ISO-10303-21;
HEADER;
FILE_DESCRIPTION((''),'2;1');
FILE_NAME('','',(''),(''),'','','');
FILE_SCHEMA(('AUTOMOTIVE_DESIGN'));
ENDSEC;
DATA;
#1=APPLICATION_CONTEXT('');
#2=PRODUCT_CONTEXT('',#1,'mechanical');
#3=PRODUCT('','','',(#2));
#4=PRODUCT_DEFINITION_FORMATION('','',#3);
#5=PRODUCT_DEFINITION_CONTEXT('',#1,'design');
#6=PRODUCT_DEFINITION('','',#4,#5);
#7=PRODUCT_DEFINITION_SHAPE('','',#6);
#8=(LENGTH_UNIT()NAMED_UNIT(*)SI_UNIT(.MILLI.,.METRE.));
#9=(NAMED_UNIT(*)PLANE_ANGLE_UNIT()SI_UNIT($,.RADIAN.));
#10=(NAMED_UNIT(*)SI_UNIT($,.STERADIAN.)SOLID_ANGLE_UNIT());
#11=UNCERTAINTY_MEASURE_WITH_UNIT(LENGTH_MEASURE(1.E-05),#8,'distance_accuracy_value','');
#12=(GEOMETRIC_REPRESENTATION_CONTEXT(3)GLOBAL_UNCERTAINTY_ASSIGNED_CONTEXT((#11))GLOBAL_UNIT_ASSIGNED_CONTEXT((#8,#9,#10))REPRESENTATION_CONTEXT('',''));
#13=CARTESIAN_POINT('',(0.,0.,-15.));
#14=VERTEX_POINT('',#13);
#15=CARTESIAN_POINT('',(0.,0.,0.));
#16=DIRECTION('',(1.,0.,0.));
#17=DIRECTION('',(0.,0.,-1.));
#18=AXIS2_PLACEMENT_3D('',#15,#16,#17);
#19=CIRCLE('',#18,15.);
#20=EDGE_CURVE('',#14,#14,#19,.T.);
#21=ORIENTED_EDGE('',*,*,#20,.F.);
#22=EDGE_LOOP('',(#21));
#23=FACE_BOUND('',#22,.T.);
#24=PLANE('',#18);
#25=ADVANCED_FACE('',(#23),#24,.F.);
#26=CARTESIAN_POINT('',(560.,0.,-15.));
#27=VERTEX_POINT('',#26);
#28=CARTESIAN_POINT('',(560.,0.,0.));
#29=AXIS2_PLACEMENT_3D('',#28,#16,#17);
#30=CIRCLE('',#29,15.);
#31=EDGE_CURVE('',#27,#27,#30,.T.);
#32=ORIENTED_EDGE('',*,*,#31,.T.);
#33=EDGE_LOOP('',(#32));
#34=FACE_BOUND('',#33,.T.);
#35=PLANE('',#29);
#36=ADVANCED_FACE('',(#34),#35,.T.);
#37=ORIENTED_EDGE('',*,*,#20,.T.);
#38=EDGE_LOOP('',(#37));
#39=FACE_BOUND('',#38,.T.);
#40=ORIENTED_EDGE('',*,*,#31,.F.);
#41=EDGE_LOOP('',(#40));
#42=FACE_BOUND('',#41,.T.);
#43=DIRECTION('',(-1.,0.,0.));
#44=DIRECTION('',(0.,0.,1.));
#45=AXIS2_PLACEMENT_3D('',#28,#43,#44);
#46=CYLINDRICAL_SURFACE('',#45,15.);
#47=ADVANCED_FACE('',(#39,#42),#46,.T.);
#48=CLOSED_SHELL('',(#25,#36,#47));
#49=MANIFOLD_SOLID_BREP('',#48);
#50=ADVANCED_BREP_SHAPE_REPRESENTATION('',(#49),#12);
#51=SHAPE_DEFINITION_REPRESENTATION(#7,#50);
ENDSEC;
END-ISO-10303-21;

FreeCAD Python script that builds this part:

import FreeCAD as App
import Part
import Sketcher

V = App.Vector
Q = App.Units.Quantity

doc = App.newDocument("Part")
body = doc.addObject("PartDesign::Body", "Body")

sketch1 = body.newObject("Sketcher::SketchObject", "Sketch")
sketch1.AttachmentSupport = (doc.getObject("YZ_Plane"), [""])
sketch1.MapMode = "FlatFace"
sketch1.addGeometry(Part.Circle(V(0, 0, 0), V(0, 0, 1), 15), False)
sketch1.addConstraint(Sketcher.Constraint("Coincident", 0, 3, -1, 1))
sketch1.addConstraint(Sketcher.Constraint("Diameter", 0, Q("30 mm")))
pad1 = body.newObject("PartDesign::Pad", "Pad")
pad1.Profile = sketch1
pad1.Length = 560

doc.recompute()
